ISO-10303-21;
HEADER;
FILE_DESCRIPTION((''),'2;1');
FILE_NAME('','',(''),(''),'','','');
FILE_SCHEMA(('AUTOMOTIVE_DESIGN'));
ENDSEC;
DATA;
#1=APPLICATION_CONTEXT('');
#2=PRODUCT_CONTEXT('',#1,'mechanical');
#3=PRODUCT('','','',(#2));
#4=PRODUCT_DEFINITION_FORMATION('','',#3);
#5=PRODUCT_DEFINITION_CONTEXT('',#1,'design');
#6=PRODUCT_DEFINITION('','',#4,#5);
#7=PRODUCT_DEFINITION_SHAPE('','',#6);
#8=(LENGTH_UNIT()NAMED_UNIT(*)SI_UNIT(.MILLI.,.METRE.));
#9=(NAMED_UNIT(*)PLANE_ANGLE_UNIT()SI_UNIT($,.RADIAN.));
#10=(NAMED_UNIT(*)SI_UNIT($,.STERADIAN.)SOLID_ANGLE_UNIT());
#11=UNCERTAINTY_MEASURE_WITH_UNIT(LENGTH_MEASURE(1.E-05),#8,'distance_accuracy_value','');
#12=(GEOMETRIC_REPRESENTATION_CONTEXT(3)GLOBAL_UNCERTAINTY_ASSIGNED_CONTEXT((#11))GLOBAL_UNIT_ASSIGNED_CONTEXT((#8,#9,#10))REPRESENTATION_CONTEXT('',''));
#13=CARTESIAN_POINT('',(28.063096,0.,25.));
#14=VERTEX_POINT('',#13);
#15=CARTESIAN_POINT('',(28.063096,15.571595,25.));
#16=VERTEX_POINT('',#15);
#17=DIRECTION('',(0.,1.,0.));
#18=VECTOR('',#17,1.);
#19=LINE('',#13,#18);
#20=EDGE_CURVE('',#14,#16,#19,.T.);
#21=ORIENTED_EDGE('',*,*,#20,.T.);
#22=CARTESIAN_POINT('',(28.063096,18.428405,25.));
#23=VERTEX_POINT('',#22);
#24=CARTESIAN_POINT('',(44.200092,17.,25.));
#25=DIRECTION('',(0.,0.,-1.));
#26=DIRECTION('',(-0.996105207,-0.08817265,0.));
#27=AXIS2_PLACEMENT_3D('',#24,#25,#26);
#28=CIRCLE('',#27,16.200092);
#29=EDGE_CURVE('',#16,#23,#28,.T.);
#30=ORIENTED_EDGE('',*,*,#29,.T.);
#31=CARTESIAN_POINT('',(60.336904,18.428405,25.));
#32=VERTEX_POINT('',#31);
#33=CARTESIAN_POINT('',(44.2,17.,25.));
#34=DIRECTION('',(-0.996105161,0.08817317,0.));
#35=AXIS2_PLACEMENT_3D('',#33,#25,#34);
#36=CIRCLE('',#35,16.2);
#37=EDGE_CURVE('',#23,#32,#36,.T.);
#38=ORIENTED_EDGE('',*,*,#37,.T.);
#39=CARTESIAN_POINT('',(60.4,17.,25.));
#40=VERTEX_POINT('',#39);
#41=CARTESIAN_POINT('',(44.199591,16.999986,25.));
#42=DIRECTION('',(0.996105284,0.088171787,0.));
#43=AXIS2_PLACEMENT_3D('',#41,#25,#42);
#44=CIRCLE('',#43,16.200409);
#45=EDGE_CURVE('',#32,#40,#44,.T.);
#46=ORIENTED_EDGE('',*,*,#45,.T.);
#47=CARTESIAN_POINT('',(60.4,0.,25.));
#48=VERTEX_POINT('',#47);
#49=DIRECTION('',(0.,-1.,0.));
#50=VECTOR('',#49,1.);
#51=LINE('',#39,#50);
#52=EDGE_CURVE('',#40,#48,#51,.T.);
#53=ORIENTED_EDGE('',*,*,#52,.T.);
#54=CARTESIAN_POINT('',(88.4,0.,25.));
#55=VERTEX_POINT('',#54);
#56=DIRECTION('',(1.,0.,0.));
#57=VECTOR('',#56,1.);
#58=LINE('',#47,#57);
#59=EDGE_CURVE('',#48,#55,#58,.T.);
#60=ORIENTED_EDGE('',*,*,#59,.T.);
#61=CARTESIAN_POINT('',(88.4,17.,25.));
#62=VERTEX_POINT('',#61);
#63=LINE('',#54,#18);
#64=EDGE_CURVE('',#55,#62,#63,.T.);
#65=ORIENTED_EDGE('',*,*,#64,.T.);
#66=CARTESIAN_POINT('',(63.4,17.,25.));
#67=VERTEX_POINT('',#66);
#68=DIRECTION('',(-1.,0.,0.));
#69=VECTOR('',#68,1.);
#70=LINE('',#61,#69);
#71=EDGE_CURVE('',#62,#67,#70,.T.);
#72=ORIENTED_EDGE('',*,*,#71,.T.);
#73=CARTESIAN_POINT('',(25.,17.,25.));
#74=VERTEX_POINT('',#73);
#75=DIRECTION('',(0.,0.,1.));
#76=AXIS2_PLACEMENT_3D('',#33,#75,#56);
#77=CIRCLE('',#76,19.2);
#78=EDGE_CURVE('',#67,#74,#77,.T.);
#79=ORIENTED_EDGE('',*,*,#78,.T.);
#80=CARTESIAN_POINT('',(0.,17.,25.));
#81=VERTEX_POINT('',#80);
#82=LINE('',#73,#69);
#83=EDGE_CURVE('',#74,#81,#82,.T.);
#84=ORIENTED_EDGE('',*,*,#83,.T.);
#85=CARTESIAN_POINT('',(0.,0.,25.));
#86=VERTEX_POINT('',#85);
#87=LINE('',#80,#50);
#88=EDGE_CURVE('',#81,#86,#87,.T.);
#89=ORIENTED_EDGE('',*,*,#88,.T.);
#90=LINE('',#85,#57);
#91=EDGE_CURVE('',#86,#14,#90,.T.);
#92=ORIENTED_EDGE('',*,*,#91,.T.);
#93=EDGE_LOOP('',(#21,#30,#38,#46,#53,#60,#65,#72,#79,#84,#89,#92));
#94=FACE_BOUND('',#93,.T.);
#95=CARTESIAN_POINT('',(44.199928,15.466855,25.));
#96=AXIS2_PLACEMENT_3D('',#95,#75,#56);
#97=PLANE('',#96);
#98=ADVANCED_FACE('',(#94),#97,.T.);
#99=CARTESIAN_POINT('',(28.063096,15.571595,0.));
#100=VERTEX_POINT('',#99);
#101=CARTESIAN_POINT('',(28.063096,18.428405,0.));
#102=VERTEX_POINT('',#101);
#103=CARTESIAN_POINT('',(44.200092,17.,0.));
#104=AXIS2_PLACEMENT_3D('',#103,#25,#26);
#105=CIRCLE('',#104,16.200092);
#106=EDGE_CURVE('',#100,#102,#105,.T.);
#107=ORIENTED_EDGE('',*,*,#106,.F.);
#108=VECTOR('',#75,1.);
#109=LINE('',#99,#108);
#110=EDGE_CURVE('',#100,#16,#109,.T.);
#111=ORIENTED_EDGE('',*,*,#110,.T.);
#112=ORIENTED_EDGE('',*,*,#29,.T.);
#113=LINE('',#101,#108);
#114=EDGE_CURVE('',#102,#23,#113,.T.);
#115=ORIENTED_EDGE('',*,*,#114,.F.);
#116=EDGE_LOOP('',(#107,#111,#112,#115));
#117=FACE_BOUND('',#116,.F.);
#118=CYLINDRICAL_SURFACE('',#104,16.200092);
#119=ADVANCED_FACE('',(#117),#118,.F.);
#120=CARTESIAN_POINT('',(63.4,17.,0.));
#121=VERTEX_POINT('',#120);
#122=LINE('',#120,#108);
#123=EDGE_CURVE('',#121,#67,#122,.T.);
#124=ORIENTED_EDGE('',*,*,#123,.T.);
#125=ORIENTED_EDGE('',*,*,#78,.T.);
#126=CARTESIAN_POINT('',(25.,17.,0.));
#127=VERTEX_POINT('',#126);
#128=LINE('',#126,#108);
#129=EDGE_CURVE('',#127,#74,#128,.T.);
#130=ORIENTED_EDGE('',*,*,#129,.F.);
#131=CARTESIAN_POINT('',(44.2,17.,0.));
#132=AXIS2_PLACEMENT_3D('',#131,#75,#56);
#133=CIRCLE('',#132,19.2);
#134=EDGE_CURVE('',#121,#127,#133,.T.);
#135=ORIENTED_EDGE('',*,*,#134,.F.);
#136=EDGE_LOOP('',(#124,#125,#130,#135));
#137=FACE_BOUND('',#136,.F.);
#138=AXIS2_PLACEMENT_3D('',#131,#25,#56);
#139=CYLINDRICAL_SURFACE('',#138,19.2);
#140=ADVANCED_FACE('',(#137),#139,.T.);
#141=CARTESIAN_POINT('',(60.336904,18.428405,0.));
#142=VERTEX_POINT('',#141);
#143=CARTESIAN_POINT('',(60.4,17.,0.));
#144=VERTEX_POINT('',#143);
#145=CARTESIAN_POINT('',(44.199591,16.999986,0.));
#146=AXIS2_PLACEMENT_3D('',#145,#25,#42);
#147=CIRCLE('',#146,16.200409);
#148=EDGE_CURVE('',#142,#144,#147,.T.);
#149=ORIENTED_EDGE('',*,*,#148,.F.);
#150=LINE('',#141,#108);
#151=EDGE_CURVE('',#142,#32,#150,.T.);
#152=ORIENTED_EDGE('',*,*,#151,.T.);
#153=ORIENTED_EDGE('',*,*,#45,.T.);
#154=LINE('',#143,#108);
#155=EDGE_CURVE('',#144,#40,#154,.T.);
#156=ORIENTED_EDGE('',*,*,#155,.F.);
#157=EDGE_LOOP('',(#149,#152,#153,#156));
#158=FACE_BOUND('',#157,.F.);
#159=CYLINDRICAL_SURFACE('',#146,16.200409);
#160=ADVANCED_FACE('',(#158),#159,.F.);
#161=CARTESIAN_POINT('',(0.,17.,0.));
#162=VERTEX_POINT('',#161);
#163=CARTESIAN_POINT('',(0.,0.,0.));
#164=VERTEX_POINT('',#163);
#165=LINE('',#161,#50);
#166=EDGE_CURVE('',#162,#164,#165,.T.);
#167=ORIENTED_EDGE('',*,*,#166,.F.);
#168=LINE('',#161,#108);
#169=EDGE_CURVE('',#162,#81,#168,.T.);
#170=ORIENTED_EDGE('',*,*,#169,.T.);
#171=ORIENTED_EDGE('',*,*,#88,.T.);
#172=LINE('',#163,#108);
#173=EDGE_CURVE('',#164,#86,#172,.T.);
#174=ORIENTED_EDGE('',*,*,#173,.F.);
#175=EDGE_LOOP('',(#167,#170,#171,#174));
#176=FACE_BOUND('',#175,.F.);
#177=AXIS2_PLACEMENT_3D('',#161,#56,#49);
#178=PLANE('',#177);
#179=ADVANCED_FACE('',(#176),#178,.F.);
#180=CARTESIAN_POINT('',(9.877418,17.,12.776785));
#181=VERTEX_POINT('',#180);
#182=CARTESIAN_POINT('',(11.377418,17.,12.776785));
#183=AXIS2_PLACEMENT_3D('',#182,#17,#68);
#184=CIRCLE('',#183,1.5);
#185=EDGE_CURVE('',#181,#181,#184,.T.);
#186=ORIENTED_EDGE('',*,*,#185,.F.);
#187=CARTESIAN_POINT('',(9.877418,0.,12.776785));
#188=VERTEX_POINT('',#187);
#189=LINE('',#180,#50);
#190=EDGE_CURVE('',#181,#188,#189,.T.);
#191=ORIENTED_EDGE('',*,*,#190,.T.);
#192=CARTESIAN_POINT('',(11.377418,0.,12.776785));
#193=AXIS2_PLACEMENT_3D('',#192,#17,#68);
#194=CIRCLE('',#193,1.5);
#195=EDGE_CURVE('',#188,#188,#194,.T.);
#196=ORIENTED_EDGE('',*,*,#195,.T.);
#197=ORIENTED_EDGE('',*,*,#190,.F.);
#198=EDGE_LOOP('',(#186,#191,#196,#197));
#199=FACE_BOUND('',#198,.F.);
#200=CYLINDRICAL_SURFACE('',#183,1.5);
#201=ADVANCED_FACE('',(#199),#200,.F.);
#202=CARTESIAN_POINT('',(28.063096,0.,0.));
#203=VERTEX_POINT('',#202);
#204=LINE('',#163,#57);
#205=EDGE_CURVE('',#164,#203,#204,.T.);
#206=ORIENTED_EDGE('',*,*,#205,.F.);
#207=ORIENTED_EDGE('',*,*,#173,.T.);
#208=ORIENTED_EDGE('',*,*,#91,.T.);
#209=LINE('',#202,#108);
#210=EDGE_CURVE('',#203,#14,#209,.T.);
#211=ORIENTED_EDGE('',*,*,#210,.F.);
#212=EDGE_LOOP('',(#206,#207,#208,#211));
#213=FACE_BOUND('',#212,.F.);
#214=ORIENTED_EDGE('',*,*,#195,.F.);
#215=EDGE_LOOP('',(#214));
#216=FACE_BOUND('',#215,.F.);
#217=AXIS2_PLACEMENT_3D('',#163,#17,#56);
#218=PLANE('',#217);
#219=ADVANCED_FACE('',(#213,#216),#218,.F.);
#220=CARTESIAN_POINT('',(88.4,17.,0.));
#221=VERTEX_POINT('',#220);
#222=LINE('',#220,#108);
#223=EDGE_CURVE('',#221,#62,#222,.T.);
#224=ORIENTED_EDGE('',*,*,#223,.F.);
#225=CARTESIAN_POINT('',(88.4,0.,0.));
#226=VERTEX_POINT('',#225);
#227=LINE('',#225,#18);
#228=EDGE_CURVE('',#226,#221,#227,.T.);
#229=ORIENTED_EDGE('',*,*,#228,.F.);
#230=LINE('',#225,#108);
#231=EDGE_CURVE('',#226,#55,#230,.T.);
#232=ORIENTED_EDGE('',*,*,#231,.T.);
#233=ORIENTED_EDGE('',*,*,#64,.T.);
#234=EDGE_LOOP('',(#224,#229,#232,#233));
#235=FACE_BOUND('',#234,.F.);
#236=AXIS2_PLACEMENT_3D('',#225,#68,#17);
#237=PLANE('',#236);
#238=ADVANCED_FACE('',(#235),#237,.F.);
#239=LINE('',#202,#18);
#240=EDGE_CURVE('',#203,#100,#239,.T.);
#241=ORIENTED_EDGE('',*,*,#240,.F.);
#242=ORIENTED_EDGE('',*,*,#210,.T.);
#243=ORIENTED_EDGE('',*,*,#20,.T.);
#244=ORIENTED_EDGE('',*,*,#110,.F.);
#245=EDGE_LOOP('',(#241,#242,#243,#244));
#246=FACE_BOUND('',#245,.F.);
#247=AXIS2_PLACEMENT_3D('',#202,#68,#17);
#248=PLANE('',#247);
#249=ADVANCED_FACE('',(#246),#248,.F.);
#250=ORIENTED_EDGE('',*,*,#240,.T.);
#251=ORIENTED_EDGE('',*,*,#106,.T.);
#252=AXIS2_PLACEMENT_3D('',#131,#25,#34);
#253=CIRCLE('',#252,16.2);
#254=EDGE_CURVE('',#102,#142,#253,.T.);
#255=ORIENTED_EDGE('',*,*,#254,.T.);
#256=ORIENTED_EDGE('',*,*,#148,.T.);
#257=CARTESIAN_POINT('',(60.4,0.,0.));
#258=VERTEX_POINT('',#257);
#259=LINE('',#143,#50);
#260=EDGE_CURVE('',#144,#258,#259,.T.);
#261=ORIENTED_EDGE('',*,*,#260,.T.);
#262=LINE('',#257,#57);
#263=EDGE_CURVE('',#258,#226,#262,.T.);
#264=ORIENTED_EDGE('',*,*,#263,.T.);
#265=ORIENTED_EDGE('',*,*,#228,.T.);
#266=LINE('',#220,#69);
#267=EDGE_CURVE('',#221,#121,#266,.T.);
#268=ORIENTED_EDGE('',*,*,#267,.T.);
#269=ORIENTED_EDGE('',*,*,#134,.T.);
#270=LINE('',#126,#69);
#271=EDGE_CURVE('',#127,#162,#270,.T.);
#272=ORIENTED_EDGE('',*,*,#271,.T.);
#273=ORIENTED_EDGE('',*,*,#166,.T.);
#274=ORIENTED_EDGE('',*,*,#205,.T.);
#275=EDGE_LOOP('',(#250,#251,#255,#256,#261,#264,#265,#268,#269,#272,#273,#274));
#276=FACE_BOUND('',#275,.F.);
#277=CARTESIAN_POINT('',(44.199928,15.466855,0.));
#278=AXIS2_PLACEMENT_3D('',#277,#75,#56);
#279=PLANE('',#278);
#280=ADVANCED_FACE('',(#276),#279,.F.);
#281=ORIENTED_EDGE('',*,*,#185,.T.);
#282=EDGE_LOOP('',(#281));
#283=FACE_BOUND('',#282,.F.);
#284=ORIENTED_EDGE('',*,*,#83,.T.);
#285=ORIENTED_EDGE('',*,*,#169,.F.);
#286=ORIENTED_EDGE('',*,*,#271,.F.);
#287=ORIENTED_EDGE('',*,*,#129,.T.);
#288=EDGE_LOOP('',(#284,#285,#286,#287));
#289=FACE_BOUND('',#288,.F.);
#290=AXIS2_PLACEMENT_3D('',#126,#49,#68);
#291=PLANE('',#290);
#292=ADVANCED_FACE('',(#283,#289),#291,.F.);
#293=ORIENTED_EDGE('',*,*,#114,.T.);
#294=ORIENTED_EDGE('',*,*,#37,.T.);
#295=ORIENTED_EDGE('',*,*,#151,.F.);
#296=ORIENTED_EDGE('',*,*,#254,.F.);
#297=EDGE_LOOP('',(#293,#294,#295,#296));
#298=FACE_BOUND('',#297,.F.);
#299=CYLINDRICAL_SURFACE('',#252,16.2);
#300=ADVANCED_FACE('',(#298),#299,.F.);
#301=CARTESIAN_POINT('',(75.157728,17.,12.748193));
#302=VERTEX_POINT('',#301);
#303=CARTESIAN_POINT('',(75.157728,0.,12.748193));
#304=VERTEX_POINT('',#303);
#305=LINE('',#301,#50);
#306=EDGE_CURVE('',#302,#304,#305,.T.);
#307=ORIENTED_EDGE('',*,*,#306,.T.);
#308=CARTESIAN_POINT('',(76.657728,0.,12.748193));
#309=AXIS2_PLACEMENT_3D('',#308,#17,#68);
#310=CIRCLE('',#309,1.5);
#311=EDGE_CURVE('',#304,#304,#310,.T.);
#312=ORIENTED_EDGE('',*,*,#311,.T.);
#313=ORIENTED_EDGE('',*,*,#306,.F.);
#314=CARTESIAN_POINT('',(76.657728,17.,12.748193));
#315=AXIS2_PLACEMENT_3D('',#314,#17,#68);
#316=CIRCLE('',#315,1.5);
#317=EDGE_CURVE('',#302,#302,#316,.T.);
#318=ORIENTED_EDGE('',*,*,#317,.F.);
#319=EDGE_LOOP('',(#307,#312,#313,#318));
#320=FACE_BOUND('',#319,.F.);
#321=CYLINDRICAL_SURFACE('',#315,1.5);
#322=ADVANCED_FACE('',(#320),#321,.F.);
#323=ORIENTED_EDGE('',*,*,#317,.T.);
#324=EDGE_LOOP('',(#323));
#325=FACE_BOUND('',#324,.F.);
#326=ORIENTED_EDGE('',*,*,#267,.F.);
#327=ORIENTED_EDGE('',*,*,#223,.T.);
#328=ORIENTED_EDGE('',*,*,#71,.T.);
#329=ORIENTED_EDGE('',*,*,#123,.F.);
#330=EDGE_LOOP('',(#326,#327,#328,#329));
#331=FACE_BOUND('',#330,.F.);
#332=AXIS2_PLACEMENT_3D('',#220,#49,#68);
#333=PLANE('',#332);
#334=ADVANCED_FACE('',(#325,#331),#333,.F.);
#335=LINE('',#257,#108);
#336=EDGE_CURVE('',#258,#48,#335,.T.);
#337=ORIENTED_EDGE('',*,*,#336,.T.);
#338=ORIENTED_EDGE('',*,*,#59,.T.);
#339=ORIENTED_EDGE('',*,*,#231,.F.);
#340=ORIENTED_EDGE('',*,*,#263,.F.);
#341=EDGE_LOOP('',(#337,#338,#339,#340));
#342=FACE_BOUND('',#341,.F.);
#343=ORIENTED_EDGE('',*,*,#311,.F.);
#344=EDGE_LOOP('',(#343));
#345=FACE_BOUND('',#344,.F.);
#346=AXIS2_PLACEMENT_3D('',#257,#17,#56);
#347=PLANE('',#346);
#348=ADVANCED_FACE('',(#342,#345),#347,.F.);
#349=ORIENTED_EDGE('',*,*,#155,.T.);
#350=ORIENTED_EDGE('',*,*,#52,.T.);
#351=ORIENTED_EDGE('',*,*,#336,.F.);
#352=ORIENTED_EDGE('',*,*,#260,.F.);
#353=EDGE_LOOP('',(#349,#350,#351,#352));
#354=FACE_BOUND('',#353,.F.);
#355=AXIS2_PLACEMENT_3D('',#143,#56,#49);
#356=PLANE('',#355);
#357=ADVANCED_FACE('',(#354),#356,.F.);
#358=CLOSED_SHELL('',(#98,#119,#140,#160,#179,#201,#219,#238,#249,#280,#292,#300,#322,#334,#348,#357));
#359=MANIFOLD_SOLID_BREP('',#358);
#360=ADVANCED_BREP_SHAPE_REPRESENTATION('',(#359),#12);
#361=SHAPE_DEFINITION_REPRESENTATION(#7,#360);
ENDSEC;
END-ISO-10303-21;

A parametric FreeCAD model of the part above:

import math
import FreeCAD as App
import Part
import Sketcher
from FreeCAD import Vector

doc = App.newDocument("Part")
params = doc.addObject("Spreadsheet::Sheet", "Params")
for row, (alias, value) in enumerate([
    ("sketch1_radius", "16.2 mm"),
    ("sketch1_radius2", "19.2 mm"),
    ("sketch1_width", "28 mm"),
    ("sketch1_width2", "25 mm"),
    ("sketch1_width3", "25 mm"),
    ("pad1_length", "25 mm"),
    ("sketch2_diameter", "3 mm"),
    ("pocket1_length", "25 mm"),
], start=1):
    params.set(f"A{row}", alias)
    params.set(f"B{row}", "=" + value)
    params.setAlias(f"B{row}", alias)

body = doc.addObject("PartDesign::Body", "Body")

# Sketch on XY plane
sketch1 = body.newObject("Sketcher::SketchObject", "Sketch")
sketch1.AttachmentSupport = (doc.getObject("XY_Plane"), [""])
sketch1.MapMode = "FlatFace"
sketch1.addGeometry([
    Part.LineSegment(Vector(0, 17, 0), Vector(0, 0, 0)),  # 0
    Part.LineSegment(Vector(0, 0, 0), Vector(28.063096, 0, 0)),  # 1
    Part.LineSegment(Vector(28.063096, 0, 0), Vector(28.063096, 15.571595, 0)),  # 2
    Part.ArcOfCircle(Part.Circle(Vector(44.200092, 17, 0), Vector(0, 0, 1), 16.200092), math.radians(174.94151), math.radians(185.05849)),  # 3
    Part.ArcOfCircle(Part.Circle(Vector(44.2, 17, 0), Vector(0, 0, 1), 16.2), math.radians(5.05852), math.radians(174.94148)),  # 4
    Part.ArcOfCircle(Part.Circle(Vector(44.199591, 16.999986, 0), Vector(0, 0, 1), 16.200409), math.radians(0.00005), math.radians(5.05844)),  # 5
    Part.LineSegment(Vector(60.4, 17, 0), Vector(60.4, 0, 0)),  # 6
    Part.LineSegment(Vector(60.4, 0, 0), Vector(88.4, 0, 0)),  # 7
    Part.LineSegment(Vector(88.4, 0, 0), Vector(88.4, 17, 0)),  # 8
    Part.LineSegment(Vector(88.4, 17, 0), Vector(63.4, 17, 0)),  # 9
    Part.ArcOfCircle(Part.Circle(Vector(44.2, 17, 0), Vector(0, 0, 1), 19.2), math.radians(0), math.radians(180)),  # 10
    Part.LineSegment(Vector(25, 17, 0), Vector(0, 17, 0)),  # 11
], False)
sketch1.addConstraint([
    Sketcher.Constraint("Coincident", 0, 2, 1, 1),
    Sketcher.Constraint("Coincident", 1, 2, 2, 1),
    Sketcher.Constraint("Coincident", 2, 2, 3, 2),
    Sketcher.Constraint("Coincident", 3, 1, 4, 2),
    Sketcher.Constraint("Coincident", 4, 1, 5, 2),
    Sketcher.Constraint("Coincident", 5, 1, 6, 1),
    Sketcher.Constraint("Coincident", 6, 2, 7, 1),
    Sketcher.Constraint("Coincident", 7, 2, 8, 1),
    Sketcher.Constraint("Coincident", 8, 2, 9, 1),
    Sketcher.Constraint("Coincident", 9, 2, 10, 1),
    Sketcher.Constraint("Coincident", 10, 2, 11, 1),
    Sketcher.Constraint("Coincident", 11, 2, 0, 1),
    Sketcher.Constraint("Vertical", 0),
    Sketcher.Constraint("Horizontal", 1),
    Sketcher.Constraint("Vertical", 2),
    Sketcher.Constraint("Vertical", 6),
    Sketcher.Constraint("Horizontal", 7),
    Sketcher.Constraint("Vertical", 8),
    Sketcher.Constraint("Horizontal", 9),
    Sketcher.Constraint("Horizontal", 11),
    Sketcher.Constraint("Coincident", 0, 2, -1, 1),
    Sketcher.Constraint("Coincident", 10, 3, 4, 3),
    Sketcher.Constraint("PointOnObject", 6, 2, -1),
    Sketcher.Constraint("Radius", 4, 16.2),
    Sketcher.Constraint("Radius", 10, 19.2),
    Sketcher.Constraint("DistanceX", 7, 1, 7, 2, 28.0),
    Sketcher.Constraint("DistanceX", 9, 2, 9, 1, 25.0),
    Sketcher.Constraint("DistanceX", 11, 2, 11, 1, 25.0),
    Sketcher.Constraint("DistanceY", 0, 2, 0, 1, 17.0),
    Sketcher.Constraint("DistanceY", 6, 2, 6, 1, 17.0),
    Sketcher.Constraint("DistanceY", 8, 1, 8, 2, 17.0),
    Sketcher.Constraint("DistanceY", -1, 1, 3, 3, 17.0),
    Sketcher.Constraint("DistanceY", -1, 1, 4, 3, 17.0),
    Sketcher.Constraint("Radius", 3, 16.200092),
    Sketcher.Constraint("Radius", 5, 16.200409),
    Sketcher.Constraint("DistanceX", 1, 1, 1, 2, 28.063096),
    Sketcher.Constraint("DistanceY", 2, 2, 3, 1, 2.85681),
    Sketcher.Constraint("DistanceY", 5, 3, 4, 1, 1.428419),
])
sketch1.setExpression("Constraints[23]", "Params.sketch1_radius")
sketch1.setExpression("Constraints[24]", "Params.sketch1_radius2")
sketch1.setExpression("Constraints[25]", "Params.sketch1_width")
sketch1.setExpression("Constraints[26]", "Params.sketch1_width2")
sketch1.setExpression("Constraints[27]", "Params.sketch1_width3")
pad1 = body.newObject("PartDesign::Pad", "Pad")
pad1.Profile = sketch1
pad1.setExpression("Length", "Params.pad1_length")

# Sketch on XZ plane
sketch2 = body.newObject("Sketcher::SketchObject", "Sketch001")
sketch2.AttachmentSupport = (doc.getObject("XZ_Plane"), [""])
sketch2.MapMode = "FlatFace"
sketch2.AttachmentOffset = App.Placement(Vector(0, 0, -17), App.Rotation())
sketch2.addGeometry([
    Part.Circle(Vector(11.4, 12.8, 0), Vector(0, 0, 1), 1.5),
    Part.Circle(Vector(76.7, 12.7, 0), Vector(0, 0, 1), 1.5),
], False)
sketch2.addConstraint([
    Sketcher.Constraint("Equal", 0, 1),
    Sketcher.Constraint("Diameter", 0, 3.0),
    Sketcher.Constraint("DistanceX", -1, 1, 1, 3, 76.657728),
    Sketcher.Constraint("DistanceX", 0, 3, 1, 3, 65.28031),
    Sketcher.Constraint("DistanceY", 1, 3, 0, 3, 0.028592),
    Sketcher.Constraint("DistanceY", -1, 1, 0, 3, 12.776785),
])
sketch2.setExpression("Constraints[1]", "Params.sketch2_diameter")
pocket1 = body.newObject("PartDesign::Pocket", "Pocket")
pocket1.Profile = sketch2
pocket1.setExpression("Length", "Params.pocket1_length")
pocket1.Reversed = True

doc.recompute()
